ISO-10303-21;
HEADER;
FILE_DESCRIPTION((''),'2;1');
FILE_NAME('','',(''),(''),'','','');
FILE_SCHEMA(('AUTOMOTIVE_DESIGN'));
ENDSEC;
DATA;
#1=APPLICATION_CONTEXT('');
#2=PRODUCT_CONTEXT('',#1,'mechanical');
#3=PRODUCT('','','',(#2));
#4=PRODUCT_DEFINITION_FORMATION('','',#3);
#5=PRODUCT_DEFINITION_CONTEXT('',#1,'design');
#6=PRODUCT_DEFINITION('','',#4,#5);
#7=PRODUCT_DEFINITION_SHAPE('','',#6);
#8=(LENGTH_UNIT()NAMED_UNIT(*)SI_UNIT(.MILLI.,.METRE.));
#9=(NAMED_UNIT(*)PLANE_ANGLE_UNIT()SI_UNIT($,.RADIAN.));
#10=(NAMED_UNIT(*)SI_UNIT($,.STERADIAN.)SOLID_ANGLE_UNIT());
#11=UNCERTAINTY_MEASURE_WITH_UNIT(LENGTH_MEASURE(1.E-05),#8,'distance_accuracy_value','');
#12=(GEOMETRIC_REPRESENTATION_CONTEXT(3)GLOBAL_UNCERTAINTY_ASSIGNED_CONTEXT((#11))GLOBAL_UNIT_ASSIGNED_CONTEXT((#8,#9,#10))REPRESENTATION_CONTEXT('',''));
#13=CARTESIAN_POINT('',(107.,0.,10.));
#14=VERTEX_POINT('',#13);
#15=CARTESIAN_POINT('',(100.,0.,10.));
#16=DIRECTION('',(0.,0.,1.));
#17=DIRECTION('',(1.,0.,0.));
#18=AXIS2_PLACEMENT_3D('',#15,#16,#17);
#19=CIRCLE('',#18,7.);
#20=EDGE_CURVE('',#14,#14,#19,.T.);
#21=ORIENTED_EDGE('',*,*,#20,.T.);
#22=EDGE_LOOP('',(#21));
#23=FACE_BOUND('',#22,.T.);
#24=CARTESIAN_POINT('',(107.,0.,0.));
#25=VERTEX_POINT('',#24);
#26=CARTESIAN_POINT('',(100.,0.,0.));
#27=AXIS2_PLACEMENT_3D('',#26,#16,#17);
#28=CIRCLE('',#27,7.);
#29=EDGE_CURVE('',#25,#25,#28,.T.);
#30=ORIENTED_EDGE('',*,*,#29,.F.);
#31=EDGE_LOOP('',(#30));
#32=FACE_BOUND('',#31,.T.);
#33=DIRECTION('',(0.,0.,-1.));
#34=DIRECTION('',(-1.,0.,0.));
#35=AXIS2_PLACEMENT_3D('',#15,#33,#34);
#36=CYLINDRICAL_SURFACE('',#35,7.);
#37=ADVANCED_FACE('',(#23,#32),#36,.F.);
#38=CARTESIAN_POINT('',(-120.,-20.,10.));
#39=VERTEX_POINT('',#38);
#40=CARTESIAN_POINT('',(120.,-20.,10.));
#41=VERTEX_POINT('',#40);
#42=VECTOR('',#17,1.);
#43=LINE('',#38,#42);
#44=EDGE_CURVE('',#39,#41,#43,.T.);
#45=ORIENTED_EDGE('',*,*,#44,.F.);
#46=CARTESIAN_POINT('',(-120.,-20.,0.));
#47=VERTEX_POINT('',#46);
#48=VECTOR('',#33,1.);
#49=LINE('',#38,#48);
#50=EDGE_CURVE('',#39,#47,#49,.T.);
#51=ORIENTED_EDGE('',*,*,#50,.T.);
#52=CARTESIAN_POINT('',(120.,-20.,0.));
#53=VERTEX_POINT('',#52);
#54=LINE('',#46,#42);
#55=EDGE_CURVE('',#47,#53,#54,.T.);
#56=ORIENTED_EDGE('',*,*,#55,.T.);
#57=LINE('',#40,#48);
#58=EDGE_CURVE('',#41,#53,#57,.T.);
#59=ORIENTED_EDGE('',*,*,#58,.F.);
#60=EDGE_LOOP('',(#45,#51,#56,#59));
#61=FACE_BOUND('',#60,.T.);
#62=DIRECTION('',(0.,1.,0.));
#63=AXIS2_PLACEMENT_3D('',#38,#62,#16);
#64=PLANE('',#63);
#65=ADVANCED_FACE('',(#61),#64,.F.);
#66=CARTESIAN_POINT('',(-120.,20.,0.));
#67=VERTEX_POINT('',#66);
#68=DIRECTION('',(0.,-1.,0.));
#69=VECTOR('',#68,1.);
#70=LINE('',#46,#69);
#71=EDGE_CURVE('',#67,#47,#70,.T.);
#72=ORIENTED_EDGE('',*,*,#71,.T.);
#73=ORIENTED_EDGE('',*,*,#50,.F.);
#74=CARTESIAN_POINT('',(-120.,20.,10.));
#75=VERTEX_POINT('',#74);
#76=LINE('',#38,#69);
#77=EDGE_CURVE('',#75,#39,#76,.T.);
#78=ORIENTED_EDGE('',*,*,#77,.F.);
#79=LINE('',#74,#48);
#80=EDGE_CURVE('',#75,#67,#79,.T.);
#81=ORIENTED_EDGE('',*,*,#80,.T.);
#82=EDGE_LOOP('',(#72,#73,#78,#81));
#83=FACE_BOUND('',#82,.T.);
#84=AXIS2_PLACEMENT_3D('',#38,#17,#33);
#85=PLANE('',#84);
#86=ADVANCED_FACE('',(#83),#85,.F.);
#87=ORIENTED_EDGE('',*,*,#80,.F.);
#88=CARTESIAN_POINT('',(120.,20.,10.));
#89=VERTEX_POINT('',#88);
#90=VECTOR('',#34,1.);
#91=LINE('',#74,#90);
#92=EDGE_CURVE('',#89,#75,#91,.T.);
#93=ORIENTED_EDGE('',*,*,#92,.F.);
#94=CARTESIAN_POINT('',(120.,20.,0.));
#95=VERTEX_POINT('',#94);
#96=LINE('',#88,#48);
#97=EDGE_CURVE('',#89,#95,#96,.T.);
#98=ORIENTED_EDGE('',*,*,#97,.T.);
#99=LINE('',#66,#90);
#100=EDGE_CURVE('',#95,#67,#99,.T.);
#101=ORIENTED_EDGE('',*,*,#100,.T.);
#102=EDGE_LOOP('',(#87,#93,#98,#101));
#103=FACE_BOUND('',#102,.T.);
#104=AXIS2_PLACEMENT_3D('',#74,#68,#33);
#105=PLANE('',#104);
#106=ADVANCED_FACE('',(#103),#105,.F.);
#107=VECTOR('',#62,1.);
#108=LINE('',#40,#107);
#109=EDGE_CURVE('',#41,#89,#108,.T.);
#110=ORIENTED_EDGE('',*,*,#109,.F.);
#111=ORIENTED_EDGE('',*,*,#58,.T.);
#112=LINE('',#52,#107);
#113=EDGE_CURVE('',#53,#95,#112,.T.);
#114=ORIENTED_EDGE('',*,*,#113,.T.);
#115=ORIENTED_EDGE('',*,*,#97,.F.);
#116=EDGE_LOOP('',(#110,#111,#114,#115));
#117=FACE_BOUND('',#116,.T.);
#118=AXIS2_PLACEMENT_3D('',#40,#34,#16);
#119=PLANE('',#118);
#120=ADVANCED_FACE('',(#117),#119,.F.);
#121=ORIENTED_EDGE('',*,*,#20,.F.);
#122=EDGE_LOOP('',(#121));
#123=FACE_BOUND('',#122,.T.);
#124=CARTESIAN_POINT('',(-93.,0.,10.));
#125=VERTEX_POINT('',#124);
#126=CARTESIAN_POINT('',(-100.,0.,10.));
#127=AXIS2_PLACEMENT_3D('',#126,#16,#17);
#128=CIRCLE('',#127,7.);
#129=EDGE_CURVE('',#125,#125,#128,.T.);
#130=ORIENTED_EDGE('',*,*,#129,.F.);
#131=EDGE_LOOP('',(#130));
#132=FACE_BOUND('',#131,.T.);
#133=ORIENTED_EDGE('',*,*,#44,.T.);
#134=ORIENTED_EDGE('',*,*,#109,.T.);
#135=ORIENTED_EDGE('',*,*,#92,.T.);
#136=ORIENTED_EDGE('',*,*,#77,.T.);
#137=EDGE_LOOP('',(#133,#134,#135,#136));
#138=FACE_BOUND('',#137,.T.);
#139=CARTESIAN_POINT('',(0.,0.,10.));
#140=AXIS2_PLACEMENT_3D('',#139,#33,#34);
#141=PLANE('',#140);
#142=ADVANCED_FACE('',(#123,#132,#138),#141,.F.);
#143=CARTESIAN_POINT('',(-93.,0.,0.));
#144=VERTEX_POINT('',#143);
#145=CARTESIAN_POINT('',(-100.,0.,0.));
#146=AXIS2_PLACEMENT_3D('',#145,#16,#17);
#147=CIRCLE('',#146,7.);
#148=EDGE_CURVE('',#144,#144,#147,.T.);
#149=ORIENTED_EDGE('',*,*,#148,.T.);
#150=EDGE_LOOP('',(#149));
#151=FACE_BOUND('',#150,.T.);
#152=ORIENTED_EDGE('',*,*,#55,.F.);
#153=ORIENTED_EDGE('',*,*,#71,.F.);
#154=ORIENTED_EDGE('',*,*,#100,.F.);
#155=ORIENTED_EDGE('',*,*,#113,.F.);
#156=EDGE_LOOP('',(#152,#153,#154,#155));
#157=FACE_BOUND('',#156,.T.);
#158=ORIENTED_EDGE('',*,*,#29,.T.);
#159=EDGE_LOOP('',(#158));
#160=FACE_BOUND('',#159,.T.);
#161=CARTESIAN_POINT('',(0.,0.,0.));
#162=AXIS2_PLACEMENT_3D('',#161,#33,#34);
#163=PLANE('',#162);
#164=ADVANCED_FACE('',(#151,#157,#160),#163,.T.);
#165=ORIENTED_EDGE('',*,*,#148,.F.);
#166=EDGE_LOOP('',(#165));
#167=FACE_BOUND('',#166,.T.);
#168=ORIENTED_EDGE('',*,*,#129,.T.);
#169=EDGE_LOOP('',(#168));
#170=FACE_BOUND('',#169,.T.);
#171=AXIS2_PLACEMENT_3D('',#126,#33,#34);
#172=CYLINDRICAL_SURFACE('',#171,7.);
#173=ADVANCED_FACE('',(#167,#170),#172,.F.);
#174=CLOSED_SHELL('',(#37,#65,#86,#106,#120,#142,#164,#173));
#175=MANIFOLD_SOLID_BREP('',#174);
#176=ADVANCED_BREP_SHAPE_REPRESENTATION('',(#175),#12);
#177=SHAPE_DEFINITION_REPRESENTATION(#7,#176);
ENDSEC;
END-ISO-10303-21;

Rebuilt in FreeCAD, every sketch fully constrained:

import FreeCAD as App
import Part
import Sketcher

V = App.Vector
Q = App.Units.Quantity

doc = App.newDocument("Part")
body = doc.addObject("PartDesign::Body", "Body")

sketch1 = body.newObject("Sketcher::SketchObject", "Sketch")
sketch1.AttachmentSupport = (doc.getObject("XY_Plane"), [""])
sketch1.MapMode = "FlatFace"
sketch1.addGeometry([
    Part.LineSegment(V(-120, 20, 0), V(-120, -20, 0)),
    Part.LineSegment(V(-120, -20, 0), V(120, -20, 0)),
    Part.LineSegment(V(120, -20, 0), V(120, 20, 0)),
    Part.LineSegment(V(120, 20, 0), V(-120, 20, 0)),
    Part.Circle(V(-100, 0, 0), V(0, 0, 1), 7),
    Part.Circle(V(100, 0, 0), V(0, 0, 1), 7),
], False)
sketch1.addConstraint([
    Sketcher.Constraint("Coincident", 0, 2, 1, 1),
    Sketcher.Constraint("Coincident", 1, 2, 2, 1),
    Sketcher.Constraint("Coincident", 2, 2, 3, 1),
    Sketcher.Constraint("Coincident", 3, 2, 0, 1),
    Sketcher.Constraint("Vertical", 0),
    Sketcher.Constraint("Horizontal", 1),
    Sketcher.Constraint("Vertical", 2),
    Sketcher.Constraint("Horizontal", 3),
    Sketcher.Constraint("Equal", 4, 5),
    Sketcher.Constraint("Symmetric", 4, 3, 5, 3, -1, 1),
    Sketcher.Constraint("Symmetric", 0, 2, 2, 2, -1, 1),
    Sketcher.Constraint("PointOnObject", 4, 3, -1),
    Sketcher.Constraint("Diameter", 4, Q("14 mm")),
    Sketcher.Constraint("DistanceX", 1, 1, 1, 2, Q("240 mm")),
    Sketcher.Constraint("DistanceY", 0, 2, 0, 1, Q("40 mm")),
    Sketcher.Constraint("DistanceX", 4, 3, -1, 1, Q("100 mm")),
])
pad1 = body.newObject("PartDesign::Pad", "Pad")
pad1.Profile = sketch1
pad1.Length = 10

doc.recompute()
